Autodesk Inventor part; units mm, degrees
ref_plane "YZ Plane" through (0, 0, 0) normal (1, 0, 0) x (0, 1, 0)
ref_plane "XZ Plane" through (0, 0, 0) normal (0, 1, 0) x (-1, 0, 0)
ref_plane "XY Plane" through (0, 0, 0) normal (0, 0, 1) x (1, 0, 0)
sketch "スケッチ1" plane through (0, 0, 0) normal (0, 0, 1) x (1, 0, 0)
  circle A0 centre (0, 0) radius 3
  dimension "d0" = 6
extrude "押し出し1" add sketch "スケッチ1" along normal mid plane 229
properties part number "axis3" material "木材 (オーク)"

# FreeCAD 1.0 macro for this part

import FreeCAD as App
import Part
import Sketcher
from FreeCAD import Vector

doc = App.newDocument("Part")
params = doc.addObject("Spreadsheet::Sheet", "Params")
for row, (alias, value) in enumerate([
    ("sketch1_diameter", "6 mm"),
    ("pad1_length", "229 mm"),
], start=1):
    params.set(f"A{row}", alias)
    params.set(f"B{row}", "=" + value)
    params.setAlias(f"B{row}", alias)

body = doc.addObject("PartDesign::Body", "Body")

sketch1 = body.newObject("Sketcher::SketchObject", "Sketch")
sketch1.AttachmentSupport = (doc.getObject("XY_Plane"), [""])
sketch1.MapMode = "FlatFace"
sketch1.addGeometry(Part.Circle(Vector(0, 0, 0), Vector(0, 0, 1), 3), False)
sketch1.addConstraint(Sketcher.Constraint("Coincident", 0, 3, -1, 1))
sketch1.addConstraint(Sketcher.Constraint("Diameter", 0, 6.0))
sketch1.setExpression("Constraints[1]", "Params.sketch1_diameter")
pad1 = body.newObject("PartDesign::Pad", "Pad")
pad1.Profile = sketch1
pad1.setExpression("Length", "Params.pad1_length")
pad1.Midplane = True

doc.recompute()
